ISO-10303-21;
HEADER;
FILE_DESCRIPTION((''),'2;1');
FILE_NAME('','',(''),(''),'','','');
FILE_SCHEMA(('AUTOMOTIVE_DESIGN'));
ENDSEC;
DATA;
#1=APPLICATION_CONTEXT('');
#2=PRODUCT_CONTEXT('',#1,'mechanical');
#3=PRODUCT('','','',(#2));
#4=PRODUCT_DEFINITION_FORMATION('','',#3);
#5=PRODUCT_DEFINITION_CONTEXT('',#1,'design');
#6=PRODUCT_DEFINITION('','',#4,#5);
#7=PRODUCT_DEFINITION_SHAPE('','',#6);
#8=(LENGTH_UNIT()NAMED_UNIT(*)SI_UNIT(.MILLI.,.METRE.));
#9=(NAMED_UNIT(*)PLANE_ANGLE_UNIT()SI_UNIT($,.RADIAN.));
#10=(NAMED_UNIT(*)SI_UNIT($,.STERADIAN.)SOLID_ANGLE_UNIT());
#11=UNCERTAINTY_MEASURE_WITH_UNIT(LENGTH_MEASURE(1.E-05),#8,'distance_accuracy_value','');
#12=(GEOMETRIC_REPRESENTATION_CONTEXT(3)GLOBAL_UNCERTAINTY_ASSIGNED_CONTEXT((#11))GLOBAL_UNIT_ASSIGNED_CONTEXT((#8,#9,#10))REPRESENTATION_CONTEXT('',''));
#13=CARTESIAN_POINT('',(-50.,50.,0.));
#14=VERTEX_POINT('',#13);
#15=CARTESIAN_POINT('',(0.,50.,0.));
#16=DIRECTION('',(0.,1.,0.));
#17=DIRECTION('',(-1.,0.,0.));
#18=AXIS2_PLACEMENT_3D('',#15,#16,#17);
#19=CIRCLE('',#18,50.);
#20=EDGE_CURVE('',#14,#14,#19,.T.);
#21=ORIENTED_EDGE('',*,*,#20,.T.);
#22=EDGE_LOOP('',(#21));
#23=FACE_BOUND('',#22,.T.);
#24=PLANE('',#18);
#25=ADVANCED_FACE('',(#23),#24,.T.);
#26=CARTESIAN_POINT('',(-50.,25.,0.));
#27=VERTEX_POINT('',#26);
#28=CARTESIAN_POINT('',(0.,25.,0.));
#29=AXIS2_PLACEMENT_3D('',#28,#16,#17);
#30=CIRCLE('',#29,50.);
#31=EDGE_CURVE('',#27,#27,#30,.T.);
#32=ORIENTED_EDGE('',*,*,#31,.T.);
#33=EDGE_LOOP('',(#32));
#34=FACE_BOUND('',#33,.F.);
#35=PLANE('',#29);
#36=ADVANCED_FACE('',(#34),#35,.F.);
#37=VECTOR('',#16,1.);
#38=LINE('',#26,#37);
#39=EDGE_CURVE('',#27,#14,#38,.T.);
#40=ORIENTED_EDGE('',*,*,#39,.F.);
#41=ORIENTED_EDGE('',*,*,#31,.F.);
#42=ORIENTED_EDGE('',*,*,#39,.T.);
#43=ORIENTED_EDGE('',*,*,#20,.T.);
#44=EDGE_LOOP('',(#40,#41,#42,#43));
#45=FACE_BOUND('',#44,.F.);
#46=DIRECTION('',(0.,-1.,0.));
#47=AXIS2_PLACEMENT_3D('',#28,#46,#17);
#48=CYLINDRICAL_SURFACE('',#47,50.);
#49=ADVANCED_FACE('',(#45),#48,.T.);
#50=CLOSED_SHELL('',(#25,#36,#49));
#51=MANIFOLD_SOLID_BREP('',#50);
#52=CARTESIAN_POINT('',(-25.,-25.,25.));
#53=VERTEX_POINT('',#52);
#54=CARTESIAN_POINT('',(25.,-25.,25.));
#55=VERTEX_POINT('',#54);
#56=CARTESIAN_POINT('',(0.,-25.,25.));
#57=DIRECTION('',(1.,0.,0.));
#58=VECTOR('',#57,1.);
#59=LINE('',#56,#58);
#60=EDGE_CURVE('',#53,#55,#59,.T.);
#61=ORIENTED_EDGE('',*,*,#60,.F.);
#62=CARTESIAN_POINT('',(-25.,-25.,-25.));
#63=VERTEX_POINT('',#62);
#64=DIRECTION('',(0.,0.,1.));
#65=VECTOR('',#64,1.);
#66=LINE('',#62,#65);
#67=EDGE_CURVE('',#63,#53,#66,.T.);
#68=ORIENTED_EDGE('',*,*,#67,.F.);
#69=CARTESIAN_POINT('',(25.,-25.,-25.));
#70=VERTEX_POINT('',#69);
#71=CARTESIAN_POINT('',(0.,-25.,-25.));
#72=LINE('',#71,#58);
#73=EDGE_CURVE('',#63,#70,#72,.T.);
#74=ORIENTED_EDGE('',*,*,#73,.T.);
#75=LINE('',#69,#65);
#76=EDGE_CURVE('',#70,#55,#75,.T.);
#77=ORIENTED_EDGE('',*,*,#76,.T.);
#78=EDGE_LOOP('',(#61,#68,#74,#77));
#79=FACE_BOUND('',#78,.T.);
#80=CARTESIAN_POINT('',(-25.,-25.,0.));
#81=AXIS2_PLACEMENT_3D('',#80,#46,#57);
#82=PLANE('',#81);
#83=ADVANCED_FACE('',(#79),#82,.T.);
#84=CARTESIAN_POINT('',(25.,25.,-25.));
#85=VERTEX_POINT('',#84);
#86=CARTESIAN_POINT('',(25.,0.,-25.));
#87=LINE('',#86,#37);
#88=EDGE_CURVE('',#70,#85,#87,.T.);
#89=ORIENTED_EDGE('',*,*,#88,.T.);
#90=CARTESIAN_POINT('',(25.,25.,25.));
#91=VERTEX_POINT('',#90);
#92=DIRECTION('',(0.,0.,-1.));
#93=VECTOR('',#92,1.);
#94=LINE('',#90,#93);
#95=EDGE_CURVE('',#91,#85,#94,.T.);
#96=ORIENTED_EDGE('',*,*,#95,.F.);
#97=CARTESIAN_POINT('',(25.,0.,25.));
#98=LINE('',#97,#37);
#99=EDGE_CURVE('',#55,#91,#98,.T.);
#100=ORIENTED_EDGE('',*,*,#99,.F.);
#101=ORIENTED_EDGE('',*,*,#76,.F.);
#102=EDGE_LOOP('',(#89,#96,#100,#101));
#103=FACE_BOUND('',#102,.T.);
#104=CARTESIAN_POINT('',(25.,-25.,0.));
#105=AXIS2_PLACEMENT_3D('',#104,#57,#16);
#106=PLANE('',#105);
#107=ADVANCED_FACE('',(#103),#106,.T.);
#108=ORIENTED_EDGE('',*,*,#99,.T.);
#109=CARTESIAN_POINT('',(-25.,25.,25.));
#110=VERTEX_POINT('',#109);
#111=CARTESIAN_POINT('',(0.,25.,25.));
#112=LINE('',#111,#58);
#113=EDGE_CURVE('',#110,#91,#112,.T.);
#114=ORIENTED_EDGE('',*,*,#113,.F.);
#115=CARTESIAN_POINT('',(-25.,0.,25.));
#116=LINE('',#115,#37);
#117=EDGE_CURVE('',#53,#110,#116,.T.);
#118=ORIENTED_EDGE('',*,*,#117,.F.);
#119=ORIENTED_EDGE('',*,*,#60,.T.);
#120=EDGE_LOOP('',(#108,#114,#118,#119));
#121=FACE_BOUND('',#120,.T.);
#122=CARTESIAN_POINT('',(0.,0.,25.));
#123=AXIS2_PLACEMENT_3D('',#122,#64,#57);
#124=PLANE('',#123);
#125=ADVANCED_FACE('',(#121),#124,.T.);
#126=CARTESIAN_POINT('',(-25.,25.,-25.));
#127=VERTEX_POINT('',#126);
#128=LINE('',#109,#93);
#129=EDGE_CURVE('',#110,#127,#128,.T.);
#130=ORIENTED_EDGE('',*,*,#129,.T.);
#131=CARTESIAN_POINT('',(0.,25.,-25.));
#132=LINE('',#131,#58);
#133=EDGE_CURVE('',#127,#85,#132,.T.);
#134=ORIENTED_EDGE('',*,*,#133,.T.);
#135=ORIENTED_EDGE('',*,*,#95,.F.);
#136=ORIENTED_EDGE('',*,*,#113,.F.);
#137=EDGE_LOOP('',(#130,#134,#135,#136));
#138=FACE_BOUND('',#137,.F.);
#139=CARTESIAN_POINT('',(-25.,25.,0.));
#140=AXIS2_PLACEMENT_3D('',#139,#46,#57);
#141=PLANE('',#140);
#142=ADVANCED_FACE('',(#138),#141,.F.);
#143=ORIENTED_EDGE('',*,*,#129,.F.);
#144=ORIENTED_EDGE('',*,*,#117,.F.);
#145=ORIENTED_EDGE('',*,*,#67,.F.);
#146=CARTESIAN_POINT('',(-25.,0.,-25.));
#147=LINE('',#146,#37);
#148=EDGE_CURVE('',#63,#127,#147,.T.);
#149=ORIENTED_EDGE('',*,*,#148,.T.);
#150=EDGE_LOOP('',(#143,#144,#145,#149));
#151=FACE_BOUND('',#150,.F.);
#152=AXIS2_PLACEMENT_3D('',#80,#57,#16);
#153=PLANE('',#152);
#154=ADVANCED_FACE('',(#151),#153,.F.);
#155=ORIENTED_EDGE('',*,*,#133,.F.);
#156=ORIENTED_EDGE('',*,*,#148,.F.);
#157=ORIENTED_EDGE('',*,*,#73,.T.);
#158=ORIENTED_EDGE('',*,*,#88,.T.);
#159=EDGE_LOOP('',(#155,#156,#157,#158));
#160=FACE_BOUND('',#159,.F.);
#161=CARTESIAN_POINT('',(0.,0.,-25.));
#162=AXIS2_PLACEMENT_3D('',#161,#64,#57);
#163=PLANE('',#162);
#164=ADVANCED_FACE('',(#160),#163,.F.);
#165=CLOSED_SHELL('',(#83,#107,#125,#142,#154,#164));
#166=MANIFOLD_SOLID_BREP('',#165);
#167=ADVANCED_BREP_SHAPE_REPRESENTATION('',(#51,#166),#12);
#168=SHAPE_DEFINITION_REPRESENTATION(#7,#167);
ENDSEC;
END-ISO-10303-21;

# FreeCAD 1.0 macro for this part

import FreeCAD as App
import Part
import Sketcher
Q = App.Units.Quantity


def add_polygon(sketch, points):
    """Adds a closed chain of lines whose ends are joined by coincident constraints."""
    first, n = sketch.GeometryCount, len(points)
    for a, b in zip(points, points[1:] + points[:1]):
        sketch.addGeometry(Part.LineSegment(App.Vector(*a, 0), App.Vector(*b, 0)), False)
    for i in range(n):
        sketch.addConstraint(Sketcher.Constraint("Coincident", first + i, 2, first + (i + 1) % n, 1))

doc = App.newDocument("Part")
body = doc.addObject("PartDesign::Body", "Body")

# Sketch on XY plane
sketch1 = doc.addObject("Sketcher::SketchObject", "Sketch")
body.addObject(sketch1)
sketch1.AttachmentSupport = (doc.XY_Plane, [""])
sketch1.MapMode = "FlatFace"
add_polygon(sketch1, [(-25, 25), (-25, -25), (25, -25), (25, 25)])  # lines 0-3
sketch1.addConstraint(Sketcher.Constraint("Vertical", 0))
sketch1.addConstraint(Sketcher.Constraint("Horizontal", 1))
sketch1.addConstraint(Sketcher.Constraint("Vertical", 2))
sketch1.addConstraint(Sketcher.Constraint("Horizontal", 3))
sketch1.addConstraint(Sketcher.Constraint("Symmetric", 0, 2, 2, 2, -1, 1))
sketch1.addConstraint(Sketcher.Constraint("Equal", 3, 0))
sketch1.addConstraint(Sketcher.Constraint("DistanceX", 1, 1, 1, 2, Q("50 mm")))
pad1 = doc.addObject("PartDesign::Pad", "Pad")
body.addObject(pad1)
pad1.Profile = sketch1
pad1.Length = 50
pad1.Midplane = True
body2 = doc.addObject("PartDesign::Body", "Body001")

# Sketch on XZ plane
sketch2 = doc.addObject("Sketcher::SketchObject", "Sketch001")
body2.addObject(sketch2)
sketch2.AttachmentSupport = (doc.getObject("XZ_Plane001"), [""])
sketch2.MapMode = "FlatFace"
sketch2.AttachmentOffset = App.Placement(App.Vector(0, 0, -25), App.Rotation())
sketch2.addGeometry(Part.Circle(App.Vector(0, 0, 0), App.Vector(0, 0, 1), 50), False)
sketch2.addConstraint(Sketcher.Constraint("Coincident", 0, 3, -1, 1))
sketch2.addConstraint(Sketcher.Constraint("Diameter", 0, Q("100 mm")))
pad2 = doc.addObject("PartDesign::Pad", "Pad001")
body2.addObject(pad2)
pad2.Profile = sketch2
pad2.Length = 25
pad2.Reversed = True

doc.recompute()
